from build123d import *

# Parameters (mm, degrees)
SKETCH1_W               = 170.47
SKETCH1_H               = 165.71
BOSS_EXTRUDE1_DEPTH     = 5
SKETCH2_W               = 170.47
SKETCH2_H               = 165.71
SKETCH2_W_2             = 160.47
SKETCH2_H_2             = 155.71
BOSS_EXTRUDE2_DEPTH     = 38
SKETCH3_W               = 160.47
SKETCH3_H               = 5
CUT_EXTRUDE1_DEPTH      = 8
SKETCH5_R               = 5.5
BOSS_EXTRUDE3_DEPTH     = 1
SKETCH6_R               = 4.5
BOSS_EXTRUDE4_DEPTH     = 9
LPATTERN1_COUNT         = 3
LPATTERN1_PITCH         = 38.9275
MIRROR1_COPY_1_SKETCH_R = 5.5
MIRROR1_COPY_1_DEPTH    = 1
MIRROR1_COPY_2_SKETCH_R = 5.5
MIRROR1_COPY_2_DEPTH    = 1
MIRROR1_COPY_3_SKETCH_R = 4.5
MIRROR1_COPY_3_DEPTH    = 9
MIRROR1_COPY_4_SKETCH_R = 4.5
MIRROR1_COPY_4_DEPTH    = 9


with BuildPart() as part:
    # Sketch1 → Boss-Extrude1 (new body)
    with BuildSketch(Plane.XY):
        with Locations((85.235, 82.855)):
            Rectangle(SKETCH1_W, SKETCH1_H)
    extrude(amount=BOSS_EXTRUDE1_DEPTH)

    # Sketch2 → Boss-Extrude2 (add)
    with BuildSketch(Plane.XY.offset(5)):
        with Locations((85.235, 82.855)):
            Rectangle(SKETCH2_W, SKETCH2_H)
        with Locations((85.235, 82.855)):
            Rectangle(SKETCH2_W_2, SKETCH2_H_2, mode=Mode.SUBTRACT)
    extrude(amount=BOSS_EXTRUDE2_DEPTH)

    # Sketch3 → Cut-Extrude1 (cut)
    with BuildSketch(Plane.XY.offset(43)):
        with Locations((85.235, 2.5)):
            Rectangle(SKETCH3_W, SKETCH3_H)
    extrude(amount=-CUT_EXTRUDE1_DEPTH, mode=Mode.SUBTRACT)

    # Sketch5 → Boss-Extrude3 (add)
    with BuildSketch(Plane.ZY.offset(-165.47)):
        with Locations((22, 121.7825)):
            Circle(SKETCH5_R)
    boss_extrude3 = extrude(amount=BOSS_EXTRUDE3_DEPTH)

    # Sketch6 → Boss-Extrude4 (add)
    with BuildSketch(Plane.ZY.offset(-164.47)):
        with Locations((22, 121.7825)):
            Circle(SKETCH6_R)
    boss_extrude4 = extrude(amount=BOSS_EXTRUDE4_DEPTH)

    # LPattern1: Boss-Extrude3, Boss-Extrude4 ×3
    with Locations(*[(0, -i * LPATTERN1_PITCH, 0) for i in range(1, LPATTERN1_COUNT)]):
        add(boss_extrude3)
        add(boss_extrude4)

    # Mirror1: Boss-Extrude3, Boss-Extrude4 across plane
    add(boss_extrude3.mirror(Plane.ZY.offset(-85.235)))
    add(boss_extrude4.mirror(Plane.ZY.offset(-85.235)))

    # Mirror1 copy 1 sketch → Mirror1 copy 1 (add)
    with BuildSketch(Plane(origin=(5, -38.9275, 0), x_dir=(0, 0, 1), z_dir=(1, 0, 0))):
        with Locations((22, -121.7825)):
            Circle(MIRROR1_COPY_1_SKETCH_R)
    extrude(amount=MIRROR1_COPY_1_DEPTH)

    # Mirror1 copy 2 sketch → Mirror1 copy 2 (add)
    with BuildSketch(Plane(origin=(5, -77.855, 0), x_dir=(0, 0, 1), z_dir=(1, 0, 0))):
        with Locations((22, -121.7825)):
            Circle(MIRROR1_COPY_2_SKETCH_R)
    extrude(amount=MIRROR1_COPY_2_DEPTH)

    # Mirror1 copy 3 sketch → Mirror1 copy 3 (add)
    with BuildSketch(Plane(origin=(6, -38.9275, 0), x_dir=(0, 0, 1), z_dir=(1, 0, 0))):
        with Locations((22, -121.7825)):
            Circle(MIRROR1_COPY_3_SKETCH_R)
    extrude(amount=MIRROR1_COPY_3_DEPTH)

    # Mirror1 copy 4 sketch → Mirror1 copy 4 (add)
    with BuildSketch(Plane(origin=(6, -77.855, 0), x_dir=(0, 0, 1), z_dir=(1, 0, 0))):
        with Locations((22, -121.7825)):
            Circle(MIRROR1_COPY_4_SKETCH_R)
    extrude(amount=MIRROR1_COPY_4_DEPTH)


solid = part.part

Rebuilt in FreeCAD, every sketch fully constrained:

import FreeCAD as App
import Part
import Sketcher


def add_polygon(sketch, points):
    """Adds a closed chain of lines whose ends are joined by coincident constraints."""
    first, n = sketch.GeometryCount, len(points)
    for a, b in zip(points, points[1:] + points[:1]):
        sketch.addGeometry(Part.LineSegment(App.Vector(*a, 0), App.Vector(*b, 0)), False)
    for i in range(n):
        sketch.addConstraint(Sketcher.Constraint("Coincident", first + i, 2, first + (i + 1) % n, 1))

doc = App.newDocument("Part")
body = doc.addObject("PartDesign::Body", "Body")

sketch1 = body.newObject("Sketcher::SketchObject", "Sketch")
sketch1.AttachmentSupport = (doc.getObject("XY_Plane"), [""])
sketch1.MapMode = "FlatFace"
add_polygon(sketch1, [(0, 165.71), (0, 0), (170.47, 0), (170.47, 165.71)])
sketch1.addConstraint([
    Sketcher.Constraint("Vertical", 0),
    Sketcher.Constraint("Horizontal", 1),
    Sketcher.Constraint("Vertical", 2),
    Sketcher.Constraint("Horizontal", 3),
    Sketcher.Constraint("Coincident", 0, 2, -1, 1),
    Sketcher.Constraint("DistanceX", 1, 1, 1, 2, 170.47),
    Sketcher.Constraint("DistanceY", 0, 2, 0, 1, 165.71),
])
pad1 = body.newObject("PartDesign::Pad", "Pad")
pad1.Profile = sketch1
pad1.Length = 5

sketch2 = body.newObject("Sketcher::SketchObject", "Sketch001")
sketch2.AttachmentSupport = (doc.getObject("XY_Plane"), [""])
sketch2.MapMode = "FlatFace"
sketch2.AttachmentOffset = App.Placement(App.Vector(0, 0, 5), App.Rotation())
add_polygon(sketch2, [(0, 165.71), (0, 0), (170.47, 0), (170.47, 165.71)])
add_polygon(sketch2, [(165.47, 5), (5, 5), (5, 160.71), (165.47, 160.71)])
sketch2.addConstraint([
    Sketcher.Constraint("Vertical", 0),
    Sketcher.Constraint("Horizontal", 1),
    Sketcher.Constraint("Vertical", 2),
    Sketcher.Constraint("Horizontal", 3),
    Sketcher.Constraint("Horizontal", 4),
    Sketcher.Constraint("Vertical", 5),
    Sketcher.Constraint("Horizontal", 6),
    Sketcher.Constraint("Vertical", 7),
    Sketcher.Constraint("Coincident", 0, 2, -1, 1),
    Sketcher.Constraint("DistanceX", -1, 1, 4, 2, 5.0),
    Sketcher.Constraint("DistanceY", -1, 1, 4, 2, 5.0),
    Sketcher.Constraint("DistanceY", 5, 2, 3, 2, 5.0),
    Sketcher.Constraint("DistanceX", 6, 2, 2, 2, 5.0),
    Sketcher.Constraint("DistanceX", 1, 1, 1, 2, 170.47),
    Sketcher.Constraint("DistanceY", 0, 2, 0, 1, 165.71),
])
pad2 = body.newObject("PartDesign::Pad", "Pad001")
pad2.Profile = sketch2
pad2.Length = 38

sketch3 = body.newObject("Sketcher::SketchObject", "Sketch002")
sketch3.AttachmentSupport = (doc.getObject("XY_Plane"), [""])
sketch3.MapMode = "FlatFace"
sketch3.AttachmentOffset = App.Placement(App.Vector(0, 0, 43), App.Rotation())
add_polygon(sketch3, [(5, 5), (5, 0), (165.47, 0), (165.47, 5)])
sketch3.addConstraint([
    Sketcher.Constraint("Vertical", 0),
    Sketcher.Constraint("Horizontal", 1),
    Sketcher.Constraint("Vertical", 2),
    Sketcher.Constraint("Horizontal", 3),
    Sketcher.Constraint("PointOnObject", 0, 2, -1),
    Sketcher.Constraint("DistanceY", 0, 2, 0, 1, 5.0),
    Sketcher.Constraint("DistanceX", -1, 1, 0, 2, 5.0),
    Sketcher.Constraint("DistanceX", 1, 1, 1, 2, 160.47),
])
pocket1 = body.newObject("PartDesign::Pocket", "Pocket")
pocket1.Profile = sketch3
pocket1.Length = 8

sketch4 = body.newObject("Sketcher::SketchObject", "Sketch003")
sketch4.AttachmentSupport = (doc.getObject("YZ_Plane"), [""])
sketch4.MapMode = "FlatFace"
sketch4.AttachmentOffset = App.Placement(App.Vector(0, 0, 165.47), App.Rotation())
sketch4.addGeometry(Part.Circle(App.Vector(121.7825, 22, 0), App.Vector(0, 0, 1), 5.5), False)
sketch4.addConstraint([
    Sketcher.Constraint("Diameter", 0, 11.0),
    Sketcher.Constraint("DistanceY", -1, 1, 0, 3, 22.0),
    Sketcher.Constraint("DistanceX", -1, 1, 0, 3, 121.7825),
])
pad3 = body.newObject("PartDesign::Pad", "Pad002")
pad3.Profile = sketch4
pad3.Length = 1
pad3.Reversed = True

sketch5 = body.newObject("Sketcher::SketchObject", "Sketch004")
sketch5.AttachmentSupport = (doc.getObject("YZ_Plane"), [""])
sketch5.MapMode = "FlatFace"
sketch5.AttachmentOffset = App.Placement(App.Vector(0, 0, 164.47), App.Rotation())
sketch5.addGeometry(Part.Circle(App.Vector(121.7825, 22, 0), App.Vector(0, 0, 1), 4.5), False)
sketch5.addConstraint([
    Sketcher.Constraint("Diameter", 0, 9.0),
    Sketcher.Constraint("DistanceY", -1, 1, 0, 3, 22.0),
    Sketcher.Constraint("DistanceX", -1, 1, 0, 3, 121.7825),
])
pad4 = body.newObject("PartDesign::Pad", "Pad003")
pad4.Profile = sketch5
pad4.Length = 9
pad4.Reversed = True
doc.recompute()

linearpattern = body.newObject("PartDesign::LinearPattern", "LinearPattern")
linearpattern.Originals = [pad3, pad4]
linearpattern.Direction = (doc.getObject("Y_Axis"), [""])
linearpattern.Mode = "offset"
linearpattern.Offset = 38.9275
linearpattern.Occurrences = 3
linearpattern.Reversed = True
body.Tip = linearpattern
doc.recompute()

datumplane = body.newObject("PartDesign::Plane", "DatumPlane")
datumplane.AttachmentSupport = (doc.getObject("YZ_Plane"), [""])
datumplane.MapMode = "FlatFace"
datumplane.AttachmentOffset = App.Placement(App.Vector(0, 0, 85.235), App.Rotation())
mirrored = body.newObject("PartDesign::Mirrored", "Mirrored")
mirrored.Originals = [pad3, pad4]
mirrored.MirrorPlane = (datumplane, [""])
body.Tip = mirrored

sketch6 = body.newObject("Sketcher::SketchObject", "Sketch005")
sketch6.AttachmentSupport = (doc.getObject("YZ_Plane"), [""])
sketch6.MapMode = "FlatFace"
sketch6.AttachmentOffset = App.Placement(App.Vector(0, 0, 5), App.Rotation())
sketch6.addGeometry(Part.Circle(App.Vector(82.855, 22, 0), App.Vector(0, 0, 1), 5.5), False)
sketch6.addConstraint([
    Sketcher.Constraint("Diameter", 0, 11.0),
    Sketcher.Constraint("DistanceY", -1, 1, 0, 3, 22.0),
    Sketcher.Constraint("DistanceX", -1, 1, 0, 3, 82.855),
])
pad5 = body.newObject("PartDesign::Pad", "Pad004")
pad5.Profile = sketch6
pad5.Length = 1

sketch7 = body.newObject("Sketcher::SketchObject", "Sketch006")
sketch7.AttachmentSupport = (doc.getObject("YZ_Plane"), [""])
sketch7.MapMode = "FlatFace"
sketch7.AttachmentOffset = App.Placement(App.Vector(0, 0, 5), App.Rotation())
sketch7.addGeometry(Part.Circle(App.Vector(43.9275, 22, 0), App.Vector(0, 0, 1), 5.5), False)
sketch7.addConstraint([
    Sketcher.Constraint("Diameter", 0, 11.0),
    Sketcher.Constraint("DistanceY", -1, 1, 0, 3, 22.0),
    Sketcher.Constraint("DistanceX", -1, 1, 0, 3, 43.9275),
])
pad6 = body.newObject("PartDesign::Pad", "Pad005")
pad6.Profile = sketch7
pad6.Length = 1

sketch8 = body.newObject("Sketcher::SketchObject", "Sketch007")
sketch8.AttachmentSupport = (doc.getObject("YZ_Plane"), [""])
sketch8.MapMode = "FlatFace"
sketch8.AttachmentOffset = App.Placement(App.Vector(0, 0, 6), App.Rotation())
sketch8.addGeometry(Part.Circle(App.Vector(82.855, 22, 0), App.Vector(0, 0, 1), 4.5), False)
sketch8.addConstraint([
    Sketcher.Constraint("Diameter", 0, 9.0),
    Sketcher.Constraint("DistanceY", -1, 1, 0, 3, 22.0),
    Sketcher.Constraint("DistanceX", -1, 1, 0, 3, 82.855),
])
pad7 = body.newObject("PartDesign::Pad", "Pad006")
pad7.Profile = sketch8
pad7.Length = 9

sketch9 = body.newObject("Sketcher::SketchObject", "Sketch008")
sketch9.AttachmentSupport = (doc.getObject("YZ_Plane"), [""])
sketch9.MapMode = "FlatFace"
sketch9.AttachmentOffset = App.Placement(App.Vector(0, 0, 6), App.Rotation())
sketch9.addGeometry(Part.Circle(App.Vector(43.9275, 22, 0), App.Vector(0, 0, 1), 4.5), False)
sketch9.addConstraint([
    Sketcher.Constraint("Diameter", 0, 9.0),
    Sketcher.Constraint("DistanceY", -1, 1, 0, 3, 22.0),
    Sketcher.Constraint("DistanceX", -1, 1, 0, 3, 43.9275),
])
pad8 = body.newObject("PartDesign::Pad", "Pad007")
pad8.Profile = sketch9
pad8.Length = 9

doc.recompute()
